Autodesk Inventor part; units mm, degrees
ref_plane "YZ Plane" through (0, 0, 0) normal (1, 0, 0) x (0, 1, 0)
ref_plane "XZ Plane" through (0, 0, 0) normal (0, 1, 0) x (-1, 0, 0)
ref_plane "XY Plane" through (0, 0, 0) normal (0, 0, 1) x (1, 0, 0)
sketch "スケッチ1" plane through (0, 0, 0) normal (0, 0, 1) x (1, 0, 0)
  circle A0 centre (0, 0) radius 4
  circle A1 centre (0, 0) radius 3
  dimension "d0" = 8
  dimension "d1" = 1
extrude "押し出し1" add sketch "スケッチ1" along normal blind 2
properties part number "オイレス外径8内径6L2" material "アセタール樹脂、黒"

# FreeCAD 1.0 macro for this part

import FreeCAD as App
import Part
import Sketcher
from FreeCAD import Vector

doc = App.newDocument("Part")
body = doc.addObject("PartDesign::Body", "Body")

sketch1 = doc.addObject("Sketcher::SketchObject", "Sketch")
body.addObject(sketch1)
sketch1.AttachmentSupport = (doc.XY_Plane, [""])
sketch1.MapMode = "FlatFace"
sketch1.addGeometry([
    Part.Circle(Vector(0, 0, 0), Vector(0, 0, 1), 4),
    Part.Circle(Vector(0, 0, 0), Vector(0, 0, 1), 3),
], False)
sketch1.addConstraint([
    Sketcher.Constraint("Coincident", 0, 3, -1, 1),
    Sketcher.Constraint("Coincident", 1, 3, -1, 1),
    Sketcher.Constraint("Diameter", 0, 8.0),
    Sketcher.Constraint("Diameter", 1, 6.0),
])
pad1 = doc.addObject("PartDesign::Pad", "Pad")
body.addObject(pad1)
pad1.Profile = sketch1
pad1.Length = 2

doc.recompute()
